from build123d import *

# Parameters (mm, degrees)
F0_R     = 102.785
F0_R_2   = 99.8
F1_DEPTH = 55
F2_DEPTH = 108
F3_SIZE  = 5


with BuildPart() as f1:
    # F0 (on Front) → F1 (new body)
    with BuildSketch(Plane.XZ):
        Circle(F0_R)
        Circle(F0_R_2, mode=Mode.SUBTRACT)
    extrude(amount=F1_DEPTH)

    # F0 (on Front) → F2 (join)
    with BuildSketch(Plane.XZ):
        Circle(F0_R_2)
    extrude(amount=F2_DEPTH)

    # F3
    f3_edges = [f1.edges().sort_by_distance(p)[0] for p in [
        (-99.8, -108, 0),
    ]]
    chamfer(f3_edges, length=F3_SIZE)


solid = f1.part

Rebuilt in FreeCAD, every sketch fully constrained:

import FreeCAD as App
import Part
import Sketcher

V = App.Vector


def edges_at(feature, points):
    """Names of the edges that pass closest to the given points."""
    edges = feature.Shape.Edges
    near = lambda p: min(range(len(edges)), key=lambda i: edges[i].distToShape(Part.Vertex(*p))[0])
    return sorted({f"Edge{near(p) + 1}" for p in points})

doc = App.newDocument("Part")
body = doc.addObject("PartDesign::Body", "Body")

# Sketch on XZ plane
sketch1 = body.newObject("Sketcher::SketchObject", "Sketch")
sketch1.AttachmentSupport = (doc.getObject("XZ_Plane"), [""])
sketch1.MapMode = "FlatFace"
sketch1.addGeometry(Part.Circle(V(0, 0, 0), V(0, 0, 1), 103), False)
sketch1.addGeometry(Part.Circle(V(0, 0, 0), V(0, 0, 1), 100), False)
sketch1.addConstraint(Sketcher.Constraint("Coincident", 0, 3, -1, 1))
sketch1.addConstraint(Sketcher.Constraint("Coincident", 1, 3, -1, 1))
sketch1.addConstraint(Sketcher.Constraint("Diameter", 1, 199.6))
sketch1.addConstraint(Sketcher.Constraint("Diameter", 0, 205.57))
pad1 = body.newObject("PartDesign::Pad", "Pad")
pad1.Profile = sketch1
pad1.Length = 55

# Sketch on XZ plane
sketch2 = body.newObject("Sketcher::SketchObject", "Sketch001")
sketch2.AttachmentSupport = (doc.getObject("XZ_Plane"), [""])
sketch2.MapMode = "FlatFace"
sketch2.addGeometry(Part.Circle(V(0, 0, 0), V(0, 0, 1), 100), False)
sketch2.addConstraint(Sketcher.Constraint("Coincident", 0, 3, -1, 1))
sketch2.addConstraint(Sketcher.Constraint("Diameter", 0, 199.6))
pad2 = body.newObject("PartDesign::Pad", "Pad001")
pad2.Profile = sketch2
pad2.Length = 108
doc.recompute()

chamfer = body.newObject("PartDesign::Chamfer", "Chamfer")
chamfer.Base = (pad2, edges_at(pad2, [(-99.8, -108, 0)]))
chamfer.Size = 5

doc.recompute()
